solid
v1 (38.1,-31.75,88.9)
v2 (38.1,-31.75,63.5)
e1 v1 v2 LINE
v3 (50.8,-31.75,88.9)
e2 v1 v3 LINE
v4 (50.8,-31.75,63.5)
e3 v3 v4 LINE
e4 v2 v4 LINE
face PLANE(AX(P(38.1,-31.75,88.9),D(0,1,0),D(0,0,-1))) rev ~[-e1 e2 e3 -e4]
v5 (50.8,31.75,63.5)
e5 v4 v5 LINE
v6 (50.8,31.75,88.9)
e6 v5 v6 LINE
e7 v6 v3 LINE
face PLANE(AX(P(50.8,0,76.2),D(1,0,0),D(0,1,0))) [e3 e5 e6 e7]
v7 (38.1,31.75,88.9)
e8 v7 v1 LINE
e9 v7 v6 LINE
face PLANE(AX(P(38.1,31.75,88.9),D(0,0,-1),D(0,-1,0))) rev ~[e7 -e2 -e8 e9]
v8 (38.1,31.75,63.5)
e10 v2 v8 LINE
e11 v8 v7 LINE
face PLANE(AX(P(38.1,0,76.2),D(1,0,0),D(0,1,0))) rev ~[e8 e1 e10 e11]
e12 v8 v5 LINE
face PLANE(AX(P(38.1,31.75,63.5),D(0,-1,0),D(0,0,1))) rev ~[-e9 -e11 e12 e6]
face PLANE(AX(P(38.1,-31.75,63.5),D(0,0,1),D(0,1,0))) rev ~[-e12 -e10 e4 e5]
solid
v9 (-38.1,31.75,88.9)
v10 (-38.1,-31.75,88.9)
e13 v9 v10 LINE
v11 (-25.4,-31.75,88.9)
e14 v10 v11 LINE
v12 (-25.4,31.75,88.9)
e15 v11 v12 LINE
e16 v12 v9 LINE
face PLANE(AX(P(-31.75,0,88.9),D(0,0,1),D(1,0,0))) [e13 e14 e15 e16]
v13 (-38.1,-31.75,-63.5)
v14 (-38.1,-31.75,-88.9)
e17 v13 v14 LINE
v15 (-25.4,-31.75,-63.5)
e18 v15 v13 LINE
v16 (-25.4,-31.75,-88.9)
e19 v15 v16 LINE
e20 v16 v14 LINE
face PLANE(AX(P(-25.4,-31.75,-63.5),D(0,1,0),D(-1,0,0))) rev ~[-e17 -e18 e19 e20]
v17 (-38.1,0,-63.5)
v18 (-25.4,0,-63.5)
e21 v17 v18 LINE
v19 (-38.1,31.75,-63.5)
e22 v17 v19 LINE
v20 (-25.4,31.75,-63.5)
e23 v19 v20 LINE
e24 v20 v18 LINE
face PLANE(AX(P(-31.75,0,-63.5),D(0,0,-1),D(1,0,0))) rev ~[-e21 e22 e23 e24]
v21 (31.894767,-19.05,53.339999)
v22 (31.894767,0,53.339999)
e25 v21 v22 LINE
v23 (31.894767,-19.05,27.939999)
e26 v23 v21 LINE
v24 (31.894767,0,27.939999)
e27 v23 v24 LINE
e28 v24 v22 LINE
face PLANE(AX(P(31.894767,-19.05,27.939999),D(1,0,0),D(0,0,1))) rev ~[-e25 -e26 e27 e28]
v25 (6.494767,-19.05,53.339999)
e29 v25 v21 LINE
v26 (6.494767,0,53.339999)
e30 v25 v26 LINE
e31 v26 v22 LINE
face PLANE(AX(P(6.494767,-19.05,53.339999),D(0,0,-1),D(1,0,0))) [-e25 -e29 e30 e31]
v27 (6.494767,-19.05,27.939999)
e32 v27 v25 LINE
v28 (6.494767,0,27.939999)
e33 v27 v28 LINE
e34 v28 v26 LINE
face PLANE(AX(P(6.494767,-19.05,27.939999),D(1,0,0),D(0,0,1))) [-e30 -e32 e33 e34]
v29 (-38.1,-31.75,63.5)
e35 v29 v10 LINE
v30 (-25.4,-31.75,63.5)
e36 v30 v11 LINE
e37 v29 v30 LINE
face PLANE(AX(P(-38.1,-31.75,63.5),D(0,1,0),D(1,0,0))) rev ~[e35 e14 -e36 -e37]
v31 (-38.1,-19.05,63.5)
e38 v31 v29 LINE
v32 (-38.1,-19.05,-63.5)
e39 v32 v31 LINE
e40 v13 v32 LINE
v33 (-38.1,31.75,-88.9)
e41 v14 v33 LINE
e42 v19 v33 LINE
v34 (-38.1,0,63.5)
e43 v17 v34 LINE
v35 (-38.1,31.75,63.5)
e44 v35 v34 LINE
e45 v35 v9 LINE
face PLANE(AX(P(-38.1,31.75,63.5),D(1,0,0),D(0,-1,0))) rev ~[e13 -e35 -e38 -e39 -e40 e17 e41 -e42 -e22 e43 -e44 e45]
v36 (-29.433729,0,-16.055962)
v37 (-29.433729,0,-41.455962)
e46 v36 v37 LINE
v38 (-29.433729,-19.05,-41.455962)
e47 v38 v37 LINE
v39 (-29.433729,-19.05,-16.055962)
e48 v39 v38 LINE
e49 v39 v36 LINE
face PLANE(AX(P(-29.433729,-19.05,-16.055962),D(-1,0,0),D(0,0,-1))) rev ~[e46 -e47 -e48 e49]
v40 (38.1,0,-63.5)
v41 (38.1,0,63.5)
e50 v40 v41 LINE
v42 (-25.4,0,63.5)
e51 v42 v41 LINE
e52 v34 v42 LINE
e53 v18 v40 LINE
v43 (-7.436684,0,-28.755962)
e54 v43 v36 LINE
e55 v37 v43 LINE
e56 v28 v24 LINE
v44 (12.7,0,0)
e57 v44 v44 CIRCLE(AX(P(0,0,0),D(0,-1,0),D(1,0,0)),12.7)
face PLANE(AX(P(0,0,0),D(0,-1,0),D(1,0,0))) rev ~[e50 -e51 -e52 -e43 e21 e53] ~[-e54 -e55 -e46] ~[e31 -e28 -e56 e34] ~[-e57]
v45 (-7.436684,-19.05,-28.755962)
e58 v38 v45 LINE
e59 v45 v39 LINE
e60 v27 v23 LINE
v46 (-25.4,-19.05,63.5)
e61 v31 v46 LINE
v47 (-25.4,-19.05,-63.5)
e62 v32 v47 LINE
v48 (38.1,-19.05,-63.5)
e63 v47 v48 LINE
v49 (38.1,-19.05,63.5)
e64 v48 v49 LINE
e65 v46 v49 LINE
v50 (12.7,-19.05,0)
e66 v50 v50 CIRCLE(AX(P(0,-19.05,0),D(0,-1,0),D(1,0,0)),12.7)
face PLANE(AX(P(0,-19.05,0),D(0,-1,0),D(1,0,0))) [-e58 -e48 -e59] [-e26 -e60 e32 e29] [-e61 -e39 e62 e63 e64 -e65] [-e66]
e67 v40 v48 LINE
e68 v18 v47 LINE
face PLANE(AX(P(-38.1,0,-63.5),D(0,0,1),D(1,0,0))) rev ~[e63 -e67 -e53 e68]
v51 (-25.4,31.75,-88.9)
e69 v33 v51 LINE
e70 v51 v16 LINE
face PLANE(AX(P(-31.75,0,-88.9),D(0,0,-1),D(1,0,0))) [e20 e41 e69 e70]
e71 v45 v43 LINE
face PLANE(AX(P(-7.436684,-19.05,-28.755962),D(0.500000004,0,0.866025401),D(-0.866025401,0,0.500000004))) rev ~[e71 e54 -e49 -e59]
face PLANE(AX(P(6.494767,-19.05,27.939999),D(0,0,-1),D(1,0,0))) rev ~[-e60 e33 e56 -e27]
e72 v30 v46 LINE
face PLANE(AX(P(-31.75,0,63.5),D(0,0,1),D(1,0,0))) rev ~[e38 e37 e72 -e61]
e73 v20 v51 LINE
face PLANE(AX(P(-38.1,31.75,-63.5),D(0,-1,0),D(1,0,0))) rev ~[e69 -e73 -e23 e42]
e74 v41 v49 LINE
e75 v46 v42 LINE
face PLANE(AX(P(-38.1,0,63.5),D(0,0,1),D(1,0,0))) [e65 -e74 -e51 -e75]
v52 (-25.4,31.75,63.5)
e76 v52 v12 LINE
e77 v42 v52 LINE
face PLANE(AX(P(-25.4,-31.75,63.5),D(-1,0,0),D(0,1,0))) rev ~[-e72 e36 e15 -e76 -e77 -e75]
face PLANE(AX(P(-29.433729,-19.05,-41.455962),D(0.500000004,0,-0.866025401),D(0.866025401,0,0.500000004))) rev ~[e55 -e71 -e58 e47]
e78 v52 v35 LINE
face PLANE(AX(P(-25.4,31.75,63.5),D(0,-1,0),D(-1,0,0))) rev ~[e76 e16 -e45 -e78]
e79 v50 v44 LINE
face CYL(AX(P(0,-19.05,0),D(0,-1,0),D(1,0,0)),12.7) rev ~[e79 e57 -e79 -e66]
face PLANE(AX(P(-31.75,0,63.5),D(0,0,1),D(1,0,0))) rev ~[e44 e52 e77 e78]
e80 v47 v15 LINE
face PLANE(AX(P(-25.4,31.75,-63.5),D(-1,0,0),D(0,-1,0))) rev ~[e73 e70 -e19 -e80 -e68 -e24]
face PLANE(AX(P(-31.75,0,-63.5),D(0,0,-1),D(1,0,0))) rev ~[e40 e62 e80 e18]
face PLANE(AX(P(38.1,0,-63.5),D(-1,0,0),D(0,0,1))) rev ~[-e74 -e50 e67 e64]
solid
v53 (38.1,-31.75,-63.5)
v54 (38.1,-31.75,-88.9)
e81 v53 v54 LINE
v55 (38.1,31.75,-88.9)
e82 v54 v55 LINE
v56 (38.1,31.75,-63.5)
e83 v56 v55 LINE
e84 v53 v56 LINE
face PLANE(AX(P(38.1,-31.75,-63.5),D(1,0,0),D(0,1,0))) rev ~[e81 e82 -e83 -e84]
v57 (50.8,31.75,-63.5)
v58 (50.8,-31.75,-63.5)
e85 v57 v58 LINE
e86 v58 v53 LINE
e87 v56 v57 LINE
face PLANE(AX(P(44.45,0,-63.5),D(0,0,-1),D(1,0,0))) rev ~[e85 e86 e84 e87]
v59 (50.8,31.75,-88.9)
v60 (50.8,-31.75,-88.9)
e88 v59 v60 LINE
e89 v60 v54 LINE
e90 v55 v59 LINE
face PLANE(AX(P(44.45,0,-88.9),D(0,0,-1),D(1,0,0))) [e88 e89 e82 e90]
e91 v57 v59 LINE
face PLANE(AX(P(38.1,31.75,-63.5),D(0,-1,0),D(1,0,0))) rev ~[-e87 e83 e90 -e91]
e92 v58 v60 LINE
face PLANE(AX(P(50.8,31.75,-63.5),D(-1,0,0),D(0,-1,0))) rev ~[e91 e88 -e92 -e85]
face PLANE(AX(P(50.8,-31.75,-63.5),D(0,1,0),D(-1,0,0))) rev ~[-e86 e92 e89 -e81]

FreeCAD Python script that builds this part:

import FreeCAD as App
import Part
import Sketcher
from FreeCAD import Vector
Q = App.Units.Quantity

doc = App.newDocument("Part")
params = doc.addObject("Spreadsheet::Sheet", "Params")
for row, (alias, value) in enumerate([
    ("sketch1_width", "3 in"),
    ("sketch1_height", "5 in"),
    ("pad1_length", "0.75 in"),
    ("sketch2_width", "1 in"),
    ("pocket1_length", "2 in"),
    ("sketch3_diameter", "1 in"),
    ("pocket2_length", "2 in"),
    ("sketch4_height", "1 in"),
    ("sketch4_length", "1 in"),
    ("pocket3_length", "2 in"),
    ("sketch5_width", "0.5 in"),
    ("sketch5_height", "2.5 in"),
    ("pad2_length", "1 in"),
    ("sketch6_width", "0.5 in"),
    ("sketch6_height", "2.5 in"),
    ("pad3_length", "1 in"),
    ("sketch7_width", "0.5 in"),
    ("sketch7_height", "2.5 in"),
    ("pad4_length", "1 in"),
    ("sketch8_height", "1 in"),
    ("sketch8_width", "2.5 in"),
    ("pad5_length", "0.5 in"),
], start=1):
    params.set(f"A{row}", alias)
    params.set(f"B{row}", "=" + value)
    params.setAlias(f"B{row}", alias)

body = doc.addObject("PartDesign::Body", "Body")

# Sketch on XZ plane
sketch1 = body.newObject("Sketcher::SketchObject", "Sketch")
sketch1.AttachmentSupport = (doc.getObject("XZ_Plane"), [""])
sketch1.MapMode = "FlatFace"
sketch1.addGeometry([
    Part.LineSegment(Vector(-38, 64, 0), Vector(-38, -64, 0)),
    Part.LineSegment(Vector(-38, -64, 0), Vector(38, -64, 0)),
    Part.LineSegment(Vector(38, -64, 0), Vector(38, 64, 0)),
    Part.LineSegment(Vector(38, 64, 0), Vector(-38, 64, 0)),
], False)
sketch1.addConstraint([
    Sketcher.Constraint("Coincident", 0, 2, 1, 1),
    Sketcher.Constraint("Coincident", 1, 2, 2, 1),
    Sketcher.Constraint("Coincident", 2, 2, 3, 1),
    Sketcher.Constraint("Coincident", 3, 2, 0, 1),
    Sketcher.Constraint("Vertical", 0),
    Sketcher.Constraint("Horizontal", 1),
    Sketcher.Constraint("Vertical", 2),
    Sketcher.Constraint("Horizontal", 3),
    Sketcher.Constraint("Symmetric", 0, 2, 2, 2, -1, 1),
    Sketcher.Constraint("DistanceX", 1, 1, 1, 2, Q("3 in")),
    Sketcher.Constraint("DistanceY", 0, 2, 0, 1, Q("5 in")),
])
sketch1.setExpression("Constraints[9]", "Params.sketch1_width")
sketch1.setExpression("Constraints[10]", "Params.sketch1_height")
pad1 = body.newObject("PartDesign::Pad", "Pad")
pad1.Profile = sketch1
pad1.setExpression("Length", "Params.pad1_length")

# Sketch on XZ plane
sketch2 = body.newObject("Sketcher::SketchObject", "Sketch001")
sketch2.AttachmentSupport = (doc.getObject("XZ_Plane"), [""])
sketch2.MapMode = "FlatFace"
sketch2.AttachmentOffset = App.Placement(Vector(0, 0, 0.75 * 25.4), App.Rotation())
sketch2.addGeometry([
    Part.LineSegment(Vector(6, 53, 0), Vector(6, 28, 0)),
    Part.LineSegment(Vector(6, 28, 0), Vector(32, 28, 0)),
    Part.LineSegment(Vector(32, 28, 0), Vector(32, 53, 0)),
    Part.LineSegment(Vector(32, 53, 0), Vector(6, 53, 0)),
], False)
sketch2.addConstraint([
    Sketcher.Constraint("Coincident", 0, 2, 1, 1),
    Sketcher.Constraint("Coincident", 1, 2, 2, 1),
    Sketcher.Constraint("Coincident", 2, 2, 3, 1),
    Sketcher.Constraint("Coincident", 3, 2, 0, 1),
    Sketcher.Constraint("Vertical", 0),
    Sketcher.Constraint("Horizontal", 1),
    Sketcher.Constraint("Vertical", 2),
    Sketcher.Constraint("Horizontal", 3),
    Sketcher.Constraint("Equal", 3, 0),
    Sketcher.Constraint("DistanceX", 1, 1, 1, 2, Q("1 in")),
    Sketcher.Constraint("DistanceY", -1, 1, 0, 2, Q("1.1 in")),
    Sketcher.Constraint("DistanceX", -1, 1, 0, 2, Q("6.494767 mm")),
])
sketch2.setExpression("Constraints[9]", "Params.sketch2_width")
pocket1 = body.newObject("PartDesign::Pocket", "Pocket")
pocket1.Profile = sketch2
pocket1.setExpression("Length", "Params.pocket1_length")

# Sketch on XZ plane
sketch3 = body.newObject("Sketcher::SketchObject", "Sketch002")
sketch3.AttachmentSupport = (doc.getObject("XZ_Plane"), [""])
sketch3.MapMode = "FlatFace"
sketch3.AttachmentOffset = App.Placement(Vector(0, 0, 0.75 * 25.4), App.Rotation())
sketch3.addGeometry(Part.Circle(Vector(0, 0, 0), Vector(0, 0, 1), 13), False)
sketch3.addConstraint([
    Sketcher.Constraint("Coincident", 0, 3, -1, 1),
    Sketcher.Constraint("Diameter", 0, Q("1 in")),
])
sketch3.setExpression("Constraints[1]", "Params.sketch3_diameter")
pocket2 = body.newObject("PartDesign::Pocket", "Pocket001")
pocket2.Profile = sketch3
pocket2.setExpression("Length", "Params.pocket2_length")

# Sketch on XZ plane
sketch4 = body.newObject("Sketcher::SketchObject", "Sketch003")
sketch4.AttachmentSupport = (doc.getObject("XZ_Plane"), [""])
sketch4.MapMode = "FlatFace"
sketch4.AttachmentOffset = App.Placement(Vector(0, 0, 0.75 * 25.4), App.Rotation())
sketch4.addGeometry([
    Part.LineSegment(Vector(-7, -29, 0), Vector(-29, -16, 0)),
    Part.LineSegment(Vector(-29, -16, 0), Vector(-29, -41, 0)),
    Part.LineSegment(Vector(-29, -41, 0), Vector(-7, -29, 0)),
], False)
sketch4.addConstraint([
    Sketcher.Constraint("Coincident", 0, 2, 1, 1),
    Sketcher.Constraint("Coincident", 1, 2, 2, 1),
    Sketcher.Constraint("Coincident", 2, 2, 0, 1),
    Sketcher.Constraint("Vertical", 1),
    Sketcher.Constraint("Equal", 0, 2),
    Sketcher.Constraint("DistanceY", 1, 2, 1, 1, Q("1 in")),
    Sketcher.Constraint("Distance", 0, Q("1 in")),
    Sketcher.Constraint("DistanceX", 0, 2, -1, 1, Q("29.433729 mm")),
    Sketcher.Constraint("DistanceY", 2, 2, -1, 1, Q("28.755962 mm")),
])
sketch4.setExpression("Constraints[5]", "Params.sketch4_height")
sketch4.setExpression("Constraints[6]", "Params.sketch4_length")
pocket3 = body.newObject("PartDesign::Pocket", "Pocket002")
pocket3.Profile = sketch4
pocket3.setExpression("Length", "Params.pocket3_length")

# Sketch on XY plane
sketch5 = body.newObject("Sketcher::SketchObject", "Sketch004")
sketch5.AttachmentSupport = (doc.getObject("XY_Plane"), [""])
sketch5.MapMode = "FlatFace"
sketch5.AttachmentOffset = App.Placement(Vector(0, 0, -2.5 * 25.4), App.Rotation())
sketch5.addGeometry([
    Part.LineSegment(Vector(-38, -32, 0), Vector(-38, 32, 0)),
    Part.LineSegment(Vector(-38, 32, 0), Vector(-25, 32, 0)),
    Part.LineSegment(Vector(-25, 32, 0), Vector(-25, -32, 0)),
    Part.LineSegment(Vector(-25, -32, 0), Vector(-38, -32, 0)),
], False)
sketch5.addConstraint([
    Sketcher.Constraint("Coincident", 0, 2, 1, 1),
    Sketcher.Constraint("Coincident", 1, 2, 2, 1),
    Sketcher.Constraint("Coincident", 2, 2, 3, 1),
    Sketcher.Constraint("Coincident", 3, 2, 0, 1),
    Sketcher.Constraint("Vertical", 0),
    Sketcher.Constraint("Horizontal", 1),
    Sketcher.Constraint("Vertical", 2),
    Sketcher.Constraint("Horizontal", 3),
    Sketcher.Constraint("DistanceX", 1, 1, 1, 2, Q("0.5 in")),
    Sketcher.Constraint("DistanceY", 0, 1, 0, 2, Q("2.5 in")),
    Sketcher.Constraint("DistanceX", 1, 2, -1, 1, Q("1 in")),
    Sketcher.Constraint("DistanceY", -1, 1, 0, 2, Q("1.25 in")),
])
sketch5.setExpression("Constraints[8]", "Params.sketch5_width")
sketch5.setExpression("Constraints[9]", "Params.sketch5_height")
pad2 = body.newObject("PartDesign::Pad", "Pad001")
pad2.Profile = sketch5
pad2.setExpression("Length", "Params.pad2_length")
pad2.Reversed = True

# Sketch on XY plane
sketch6 = body.newObject("Sketcher::SketchObject", "Sketch005")
sketch6.AttachmentSupport = (doc.getObject("XY_Plane"), [""])
sketch6.MapMode = "FlatFace"
sketch6.AttachmentOffset = App.Placement(Vector(0, 0, 2.5 * 25.4), App.Rotation())
sketch6.addGeometry([
    Part.LineSegment(Vector(-38, -32, 0), Vector(-25, -32, 0)),
    Part.LineSegment(Vector(-25, -32, 0), Vector(-25, 32, 0)),
    Part.LineSegment(Vector(-25, 32, 0), Vector(-38, 32, 0)),
    Part.LineSegment(Vector(-38, 32, 0), Vector(-38, -32, 0)),
], False)
sketch6.addConstraint([
    Sketcher.Constraint("Coincident", 0, 2, 1, 1),
    Sketcher.Constraint("Coincident", 1, 2, 2, 1),
    Sketcher.Constraint("Coincident", 2, 2, 3, 1),
    Sketcher.Constraint("Coincident", 3, 2, 0, 1),
    Sketcher.Constraint("Horizontal", 0),
    Sketcher.Constraint("Vertical", 1),
    Sketcher.Constraint("Horizontal", 2),
    Sketcher.Constraint("Vertical", 3),
    Sketcher.Constraint("DistanceX", 0, 1, 0, 2, Q("0.5 in")),
    Sketcher.Constraint("DistanceY", 1, 1, 1, 2, Q("2.5 in")),
    Sketcher.Constraint("DistanceX", 0, 2, -1, 1, Q("1 in")),
    Sketcher.Constraint("DistanceY", 0, 2, -1, 1, Q("1.25 in")),
])
sketch6.setExpression("Constraints[8]", "Params.sketch6_width")
sketch6.setExpression("Constraints[9]", "Params.sketch6_height")
pad3 = body.newObject("PartDesign::Pad", "Pad002")
pad3.Profile = sketch6
pad3.setExpression("Length", "Params.pad3_length")
body2 = doc.addObject("PartDesign::Body", "Body001")

# Sketch on XY plane
sketch7 = body2.newObject("Sketcher::SketchObject", "Sketch006")
sketch7.AttachmentSupport = (doc.getObject("XY_Plane001"), [""])
sketch7.MapMode = "FlatFace"
sketch7.AttachmentOffset = App.Placement(Vector(0, 0, -2.5 * 25.4), App.Rotation())
sketch7.addGeometry([
    Part.LineSegment(Vector(38, -32, 0), Vector(38, 32, 0)),
    Part.LineSegment(Vector(38, 32, 0), Vector(51, 32, 0)),
    Part.LineSegment(Vector(51, 32, 0), Vector(51, -32, 0)),
    Part.LineSegment(Vector(51, -32, 0), Vector(38, -32, 0)),
], False)
sketch7.addConstraint([
    Sketcher.Constraint("Coincident", 0, 2, 1, 1),
    Sketcher.Constraint("Coincident", 1, 2, 2, 1),
    Sketcher.Constraint("Coincident", 2, 2, 3, 1),
    Sketcher.Constraint("Coincident", 3, 2, 0, 1),
    Sketcher.Constraint("Vertical", 0),
    Sketcher.Constraint("Horizontal", 1),
    Sketcher.Constraint("Vertical", 2),
    Sketcher.Constraint("Horizontal", 3),
    Sketcher.Constraint("DistanceX", 1, 1, 1, 2, Q("0.5 in")),
    Sketcher.Constraint("DistanceY", 0, 1, 0, 2, Q("2.5 in")),
    Sketcher.Constraint("DistanceX", -1, 1, 1, 2, Q("2 in")),
    Sketcher.Constraint("DistanceY", -1, 1, 0, 2, Q("1.25 in")),
])
sketch7.setExpression("Constraints[8]", "Params.sketch7_width")
sketch7.setExpression("Constraints[9]", "Params.sketch7_height")
pad4 = body2.newObject("PartDesign::Pad", "Pad003")
pad4.Profile = sketch7
pad4.setExpression("Length", "Params.pad4_length")
pad4.Reversed = True
body3 = doc.addObject("PartDesign::Body", "Body002")

# Sketch on YZ plane
sketch8 = body3.newObject("Sketcher::SketchObject", "Sketch007")
sketch8.AttachmentSupport = (doc.getObject("YZ_Plane002"), [""])
sketch8.MapMode = "FlatFace"
sketch8.AttachmentOffset = App.Placement(Vector(0, 0, 1.5 * 25.4), App.Rotation())
sketch8.addGeometry([
    Part.LineSegment(Vector(-32, 64, 0), Vector(32, 64, 0)),
    Part.LineSegment(Vector(32, 64, 0), Vector(32, 89, 0)),
    Part.LineSegment(Vector(32, 89, 0), Vector(-32, 89, 0)),
    Part.LineSegment(Vector(-32, 89, 0), Vector(-32, 64, 0)),
], False)
sketch8.addConstraint([
    Sketcher.Constraint("Coincident", 0, 2, 1, 1),
    Sketcher.Constraint("Coincident", 1, 2, 2, 1),
    Sketcher.Constraint("Coincident", 2, 2, 3, 1),
    Sketcher.Constraint("Coincident", 3, 2, 0, 1),
    Sketcher.Constraint("Horizontal", 0),
    Sketcher.Constraint("Vertical", 1),
    Sketcher.Constraint("Horizontal", 2),
    Sketcher.Constraint("Vertical", 3),
    Sketcher.Constraint("DistanceY", 1, 1, 1, 2, Q("1 in")),
    Sketcher.Constraint("DistanceX", 0, 1, 0, 2, Q("2.5 in")),
    Sketcher.Constraint("DistanceY", -1, 1, 0, 2, Q("2.5 in")),
    Sketcher.Constraint("DistanceX", -1, 1, 0, 2, Q("1.25 in")),
])
sketch8.setExpression("Constraints[8]", "Params.sketch8_height")
sketch8.setExpression("Constraints[9]", "Params.sketch8_width")
pad5 = body3.newObject("PartDesign::Pad", "Pad004")
pad5.Profile = sketch8
pad5.setExpression("Length", "Params.pad5_length")

doc.recompute()
